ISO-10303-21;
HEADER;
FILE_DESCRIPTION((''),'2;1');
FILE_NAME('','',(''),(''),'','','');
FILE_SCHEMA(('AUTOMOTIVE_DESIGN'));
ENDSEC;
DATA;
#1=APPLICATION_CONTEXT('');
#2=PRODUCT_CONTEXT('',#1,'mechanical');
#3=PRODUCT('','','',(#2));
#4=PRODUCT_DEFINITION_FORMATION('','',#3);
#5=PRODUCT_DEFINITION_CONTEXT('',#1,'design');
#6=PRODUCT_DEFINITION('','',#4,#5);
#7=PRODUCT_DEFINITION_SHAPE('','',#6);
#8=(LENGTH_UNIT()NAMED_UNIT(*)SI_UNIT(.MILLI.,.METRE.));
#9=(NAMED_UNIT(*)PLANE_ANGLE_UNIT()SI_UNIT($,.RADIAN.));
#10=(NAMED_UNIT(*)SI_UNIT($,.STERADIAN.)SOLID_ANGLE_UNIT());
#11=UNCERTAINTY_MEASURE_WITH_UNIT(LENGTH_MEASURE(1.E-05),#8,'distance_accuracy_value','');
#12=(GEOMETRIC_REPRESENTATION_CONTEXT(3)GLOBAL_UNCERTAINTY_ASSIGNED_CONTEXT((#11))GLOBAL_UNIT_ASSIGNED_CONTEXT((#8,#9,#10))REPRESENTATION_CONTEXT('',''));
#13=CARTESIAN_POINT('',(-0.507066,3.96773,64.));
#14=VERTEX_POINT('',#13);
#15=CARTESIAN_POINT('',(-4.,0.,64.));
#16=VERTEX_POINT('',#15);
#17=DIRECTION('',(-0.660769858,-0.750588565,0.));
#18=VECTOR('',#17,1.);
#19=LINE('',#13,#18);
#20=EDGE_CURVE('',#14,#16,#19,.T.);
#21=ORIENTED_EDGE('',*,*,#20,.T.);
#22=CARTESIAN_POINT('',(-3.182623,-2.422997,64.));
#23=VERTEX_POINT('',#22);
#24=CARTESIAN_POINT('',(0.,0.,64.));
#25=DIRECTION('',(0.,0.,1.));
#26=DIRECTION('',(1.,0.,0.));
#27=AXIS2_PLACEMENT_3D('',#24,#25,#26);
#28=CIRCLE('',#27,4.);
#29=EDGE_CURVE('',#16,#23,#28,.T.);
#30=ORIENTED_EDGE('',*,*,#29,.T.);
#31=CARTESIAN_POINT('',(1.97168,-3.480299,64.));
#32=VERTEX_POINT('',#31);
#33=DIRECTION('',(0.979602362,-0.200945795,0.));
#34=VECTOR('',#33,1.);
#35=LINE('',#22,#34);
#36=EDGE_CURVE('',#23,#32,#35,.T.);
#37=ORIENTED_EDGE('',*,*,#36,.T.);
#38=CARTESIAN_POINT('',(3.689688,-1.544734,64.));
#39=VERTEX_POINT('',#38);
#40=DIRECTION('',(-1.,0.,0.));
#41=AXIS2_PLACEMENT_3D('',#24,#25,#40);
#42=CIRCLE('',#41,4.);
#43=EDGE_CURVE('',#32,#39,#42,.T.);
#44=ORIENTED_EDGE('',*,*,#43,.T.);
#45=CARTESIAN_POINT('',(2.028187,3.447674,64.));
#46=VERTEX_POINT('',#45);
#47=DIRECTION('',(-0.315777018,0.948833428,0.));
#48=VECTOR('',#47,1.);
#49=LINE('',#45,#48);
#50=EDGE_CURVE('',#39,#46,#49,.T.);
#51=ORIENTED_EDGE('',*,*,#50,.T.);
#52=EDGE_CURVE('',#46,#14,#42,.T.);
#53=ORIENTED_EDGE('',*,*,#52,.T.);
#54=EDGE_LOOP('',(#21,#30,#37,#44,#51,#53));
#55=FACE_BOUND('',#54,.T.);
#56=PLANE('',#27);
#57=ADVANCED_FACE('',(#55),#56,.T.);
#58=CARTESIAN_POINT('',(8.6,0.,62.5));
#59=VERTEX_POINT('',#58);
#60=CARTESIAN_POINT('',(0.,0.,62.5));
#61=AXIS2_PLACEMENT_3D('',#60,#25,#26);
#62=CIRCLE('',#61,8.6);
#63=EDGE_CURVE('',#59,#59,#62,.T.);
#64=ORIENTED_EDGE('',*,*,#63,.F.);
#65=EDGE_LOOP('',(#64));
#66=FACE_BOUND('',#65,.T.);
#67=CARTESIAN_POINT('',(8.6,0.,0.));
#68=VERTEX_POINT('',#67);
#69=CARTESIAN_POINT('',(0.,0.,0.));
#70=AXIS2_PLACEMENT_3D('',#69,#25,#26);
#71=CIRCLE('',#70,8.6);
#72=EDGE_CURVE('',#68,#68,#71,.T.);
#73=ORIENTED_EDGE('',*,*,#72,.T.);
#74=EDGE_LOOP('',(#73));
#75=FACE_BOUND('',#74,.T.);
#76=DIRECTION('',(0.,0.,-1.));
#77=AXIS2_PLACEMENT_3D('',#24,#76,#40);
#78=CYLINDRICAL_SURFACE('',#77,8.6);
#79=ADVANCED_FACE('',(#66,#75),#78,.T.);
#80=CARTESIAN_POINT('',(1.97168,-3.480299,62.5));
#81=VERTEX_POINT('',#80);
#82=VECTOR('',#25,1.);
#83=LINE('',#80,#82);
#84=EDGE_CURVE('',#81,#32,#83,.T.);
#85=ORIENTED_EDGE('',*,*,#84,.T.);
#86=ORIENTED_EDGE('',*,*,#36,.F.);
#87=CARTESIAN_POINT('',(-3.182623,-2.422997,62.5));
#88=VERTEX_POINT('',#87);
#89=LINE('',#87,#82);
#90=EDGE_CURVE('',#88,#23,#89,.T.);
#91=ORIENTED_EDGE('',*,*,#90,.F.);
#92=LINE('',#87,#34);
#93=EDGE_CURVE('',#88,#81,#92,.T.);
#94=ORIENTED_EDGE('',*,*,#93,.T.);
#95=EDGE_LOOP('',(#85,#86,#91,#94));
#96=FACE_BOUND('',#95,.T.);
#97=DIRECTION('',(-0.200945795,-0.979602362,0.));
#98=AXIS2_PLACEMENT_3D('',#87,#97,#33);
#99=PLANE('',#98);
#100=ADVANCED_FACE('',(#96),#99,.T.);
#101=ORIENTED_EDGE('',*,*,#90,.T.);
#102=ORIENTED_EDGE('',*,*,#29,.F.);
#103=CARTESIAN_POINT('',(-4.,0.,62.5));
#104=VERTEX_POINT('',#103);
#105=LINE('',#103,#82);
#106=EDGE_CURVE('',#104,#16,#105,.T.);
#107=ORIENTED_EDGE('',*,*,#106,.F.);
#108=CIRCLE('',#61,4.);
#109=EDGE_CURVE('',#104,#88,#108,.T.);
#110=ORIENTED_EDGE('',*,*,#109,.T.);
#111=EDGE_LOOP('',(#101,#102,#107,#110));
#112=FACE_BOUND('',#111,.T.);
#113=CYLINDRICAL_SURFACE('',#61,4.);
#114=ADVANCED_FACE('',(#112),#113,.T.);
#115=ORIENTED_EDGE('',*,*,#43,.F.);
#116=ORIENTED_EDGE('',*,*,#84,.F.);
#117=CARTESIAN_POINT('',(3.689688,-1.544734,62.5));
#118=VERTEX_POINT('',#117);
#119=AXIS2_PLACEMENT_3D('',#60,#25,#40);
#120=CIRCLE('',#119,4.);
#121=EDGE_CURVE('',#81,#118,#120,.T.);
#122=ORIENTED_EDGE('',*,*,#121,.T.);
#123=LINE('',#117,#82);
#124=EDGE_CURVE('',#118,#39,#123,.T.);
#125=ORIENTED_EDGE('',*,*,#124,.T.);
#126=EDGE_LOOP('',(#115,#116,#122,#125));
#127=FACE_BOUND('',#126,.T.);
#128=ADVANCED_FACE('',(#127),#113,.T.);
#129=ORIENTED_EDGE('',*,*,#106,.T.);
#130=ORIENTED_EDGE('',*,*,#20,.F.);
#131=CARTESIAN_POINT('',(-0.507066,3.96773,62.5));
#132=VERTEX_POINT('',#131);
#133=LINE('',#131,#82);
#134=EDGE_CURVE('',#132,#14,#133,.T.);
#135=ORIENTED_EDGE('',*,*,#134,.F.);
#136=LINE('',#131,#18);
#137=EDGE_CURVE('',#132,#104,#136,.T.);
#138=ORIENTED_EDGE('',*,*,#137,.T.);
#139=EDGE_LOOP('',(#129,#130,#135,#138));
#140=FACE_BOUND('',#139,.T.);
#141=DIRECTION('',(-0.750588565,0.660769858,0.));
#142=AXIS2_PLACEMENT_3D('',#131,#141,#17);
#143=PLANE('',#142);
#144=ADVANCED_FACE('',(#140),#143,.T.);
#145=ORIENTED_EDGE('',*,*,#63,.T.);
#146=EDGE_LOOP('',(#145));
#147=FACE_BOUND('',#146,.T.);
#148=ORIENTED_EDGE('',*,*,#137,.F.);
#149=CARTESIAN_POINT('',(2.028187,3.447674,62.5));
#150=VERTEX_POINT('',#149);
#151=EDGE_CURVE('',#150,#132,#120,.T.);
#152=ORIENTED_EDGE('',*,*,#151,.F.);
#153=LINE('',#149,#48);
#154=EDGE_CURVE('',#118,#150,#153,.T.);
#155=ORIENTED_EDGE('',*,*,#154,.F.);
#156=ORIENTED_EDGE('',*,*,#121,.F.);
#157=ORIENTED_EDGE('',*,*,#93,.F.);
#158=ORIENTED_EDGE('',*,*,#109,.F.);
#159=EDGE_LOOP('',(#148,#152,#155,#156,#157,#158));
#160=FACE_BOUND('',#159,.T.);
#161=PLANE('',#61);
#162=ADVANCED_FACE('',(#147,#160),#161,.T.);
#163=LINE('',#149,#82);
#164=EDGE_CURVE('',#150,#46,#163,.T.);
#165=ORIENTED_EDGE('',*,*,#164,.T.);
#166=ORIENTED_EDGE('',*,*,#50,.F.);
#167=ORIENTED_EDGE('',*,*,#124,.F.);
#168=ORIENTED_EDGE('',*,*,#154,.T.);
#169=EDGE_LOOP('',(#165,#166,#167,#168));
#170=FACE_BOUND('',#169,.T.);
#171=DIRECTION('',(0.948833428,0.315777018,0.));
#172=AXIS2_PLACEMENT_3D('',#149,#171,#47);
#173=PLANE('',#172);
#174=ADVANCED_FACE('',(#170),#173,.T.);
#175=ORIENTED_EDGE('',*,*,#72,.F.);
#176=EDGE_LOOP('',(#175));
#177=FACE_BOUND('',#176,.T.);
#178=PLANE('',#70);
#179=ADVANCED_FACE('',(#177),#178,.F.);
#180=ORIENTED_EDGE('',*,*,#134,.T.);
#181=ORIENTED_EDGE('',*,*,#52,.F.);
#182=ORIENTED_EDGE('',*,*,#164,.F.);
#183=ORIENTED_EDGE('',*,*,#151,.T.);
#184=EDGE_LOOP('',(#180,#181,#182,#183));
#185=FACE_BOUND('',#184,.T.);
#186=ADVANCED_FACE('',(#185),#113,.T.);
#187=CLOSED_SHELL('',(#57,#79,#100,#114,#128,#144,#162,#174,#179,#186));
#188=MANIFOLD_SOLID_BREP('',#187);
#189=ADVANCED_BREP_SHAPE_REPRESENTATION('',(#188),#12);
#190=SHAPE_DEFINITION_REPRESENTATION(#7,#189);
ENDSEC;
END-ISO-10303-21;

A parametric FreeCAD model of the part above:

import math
import FreeCAD as App
import Part
import Sketcher
from FreeCAD import Vector
Q = App.Units.Quantity


def add_polygon(sketch, points):
    """Adds a closed chain of lines whose ends are joined by coincident constraints."""
    first, n = sketch.GeometryCount, len(points)
    for a, b in zip(points, points[1:] + points[:1]):
        sketch.addGeometry(Part.LineSegment(App.Vector(*a, 0), App.Vector(*b, 0)), False)
    for i in range(n):
        sketch.addConstraint(Sketcher.Constraint("Coincident", first + i, 2, first + (i + 1) % n, 1))

doc = App.newDocument("Part")
params = doc.addObject("Spreadsheet::Sheet", "Params")
for row, (alias, value) in enumerate([
    ("sketch1_diameter", "17.2 mm"),
    ("pad1_length", "64 mm"),
    ("sketch2_radius", "4 mm"),
    ("pocket1_length", "1.5 mm"),
], start=1):
    params.set(f"A{row}", alias)
    params.set(f"B{row}", "=" + value)
    params.setAlias(f"B{row}", alias)

body = doc.addObject("PartDesign::Body", "Body")

# Sketch on XY plane
sketch1 = body.newObject("Sketcher::SketchObject", "Sketch")
sketch1.AttachmentSupport = (doc.getObject("XY_Plane"), [""])
sketch1.MapMode = "FlatFace"
sketch1.addGeometry(Part.Circle(Vector(0, 0, 0), Vector(0, 0, 1), 9), False)
sketch1.addConstraint([
    Sketcher.Constraint("Coincident", 0, 3, -1, 1),
    Sketcher.Constraint("Diameter", 0, Q("17.2 mm")),
])
sketch1.setExpression("Constraints[1]", "Params.sketch1_diameter")
pad1 = body.newObject("PartDesign::Pad", "Pad")
pad1.Profile = sketch1
pad1.setExpression("Length", "Params.pad1_length")

# Sketch on XY plane
sketch2 = body.newObject("Sketcher::SketchObject", "Sketch001")
sketch2.AttachmentSupport = (doc.getObject("XY_Plane"), [""])
sketch2.MapMode = "FlatFace"
sketch2.AttachmentOffset = App.Placement(Vector(0, 0, 64), App.Rotation())
add_polygon(sketch2, [(-16.4, 16.4), (-16.4, -16.4), (16.4, -16.4), (16.4, 16.4)])  # lines 0-3
sketch2.addGeometry(Part.ArcOfCircle(Part.Circle(Vector(0, 0, 0), Vector(0, 0, 1), 4), math.radians(60), math.radians(97)), False)  # 4
sketch2.addGeometry(Part.LineSegment(Vector(2, 3.4, 0), Vector(3.7, -1.5, 0)), False)  # 5
sketch2.addGeometry(Part.ArcOfCircle(Part.Circle(Vector(0, 0, 0), Vector(0, 0, 1), 4), math.radians(-60), math.radians(-23)), False)  # 6
sketch2.addGeometry(Part.LineSegment(Vector(2, -3.5, 0), Vector(-3.2, -2.4, 0)), False)  # 7
sketch2.addGeometry(Part.ArcOfCircle(Part.Circle(Vector(0, 0, 0), Vector(0, 0, 1), 4), math.radians(180), math.radians(217)), False)  # 8
sketch2.addGeometry(Part.LineSegment(Vector(-4, 0, 0), Vector(-0.5, 4, 0)), False)  # 9
sketch2.addConstraint([
    Sketcher.Constraint("Coincident", 4, 1, 5, 1),
    Sketcher.Constraint("Coincident", 5, 2, 6, 2),
    Sketcher.Constraint("Coincident", 6, 1, 7, 1),
    Sketcher.Constraint("Coincident", 7, 2, 8, 2),
    Sketcher.Constraint("Coincident", 8, 1, 9, 1),
    Sketcher.Constraint("Coincident", 9, 2, 4, 2),
    Sketcher.Constraint("Vertical", 0),
    Sketcher.Constraint("Horizontal", 1),
    Sketcher.Constraint("Vertical", 2),
    Sketcher.Constraint("Horizontal", 3),
    Sketcher.Constraint("Coincident", 4, 3, -1, 1),
    Sketcher.Constraint("Coincident", 6, 3, -1, 1),
    Sketcher.Constraint("Coincident", 8, 3, -1, 1),
    Sketcher.Constraint("Equal", 4, 6),
    Sketcher.Constraint("Equal", 6, 8),
    Sketcher.Constraint("Symmetric", 0, 2, 2, 2, -1, 1),
    Sketcher.Constraint("PointOnObject", 8, 1, -1),
    Sketcher.Constraint("Equal", 3, 0),
    Sketcher.Constraint("Equal", 5, 7),
    Sketcher.Constraint("Radius", 4, Q("4 mm")),
    Sketcher.Constraint("DistanceX", 1, 1, 1, 2, Q("32.894 mm")),
    Sketcher.Constraint("DistanceY", 6, 1, -1, 1, Q("3.480299 mm")),
    Sketcher.Constraint("DistanceX", 4, 1, 5, 2, Q("1.661501 mm")),
    Sketcher.Constraint("DistanceY", 6, 1, 7, 2, Q("1.057302 mm")),
    Sketcher.Constraint("Distance", 9, Q("5.286159 mm")),
])
sketch2.setExpression("Constraints[23]", "Params.sketch2_radius")
pocket1 = body.newObject("PartDesign::Pocket", "Pocket")
pocket1.Profile = sketch2
pocket1.setExpression("Length", "Params.pocket1_length")

doc.recompute()
